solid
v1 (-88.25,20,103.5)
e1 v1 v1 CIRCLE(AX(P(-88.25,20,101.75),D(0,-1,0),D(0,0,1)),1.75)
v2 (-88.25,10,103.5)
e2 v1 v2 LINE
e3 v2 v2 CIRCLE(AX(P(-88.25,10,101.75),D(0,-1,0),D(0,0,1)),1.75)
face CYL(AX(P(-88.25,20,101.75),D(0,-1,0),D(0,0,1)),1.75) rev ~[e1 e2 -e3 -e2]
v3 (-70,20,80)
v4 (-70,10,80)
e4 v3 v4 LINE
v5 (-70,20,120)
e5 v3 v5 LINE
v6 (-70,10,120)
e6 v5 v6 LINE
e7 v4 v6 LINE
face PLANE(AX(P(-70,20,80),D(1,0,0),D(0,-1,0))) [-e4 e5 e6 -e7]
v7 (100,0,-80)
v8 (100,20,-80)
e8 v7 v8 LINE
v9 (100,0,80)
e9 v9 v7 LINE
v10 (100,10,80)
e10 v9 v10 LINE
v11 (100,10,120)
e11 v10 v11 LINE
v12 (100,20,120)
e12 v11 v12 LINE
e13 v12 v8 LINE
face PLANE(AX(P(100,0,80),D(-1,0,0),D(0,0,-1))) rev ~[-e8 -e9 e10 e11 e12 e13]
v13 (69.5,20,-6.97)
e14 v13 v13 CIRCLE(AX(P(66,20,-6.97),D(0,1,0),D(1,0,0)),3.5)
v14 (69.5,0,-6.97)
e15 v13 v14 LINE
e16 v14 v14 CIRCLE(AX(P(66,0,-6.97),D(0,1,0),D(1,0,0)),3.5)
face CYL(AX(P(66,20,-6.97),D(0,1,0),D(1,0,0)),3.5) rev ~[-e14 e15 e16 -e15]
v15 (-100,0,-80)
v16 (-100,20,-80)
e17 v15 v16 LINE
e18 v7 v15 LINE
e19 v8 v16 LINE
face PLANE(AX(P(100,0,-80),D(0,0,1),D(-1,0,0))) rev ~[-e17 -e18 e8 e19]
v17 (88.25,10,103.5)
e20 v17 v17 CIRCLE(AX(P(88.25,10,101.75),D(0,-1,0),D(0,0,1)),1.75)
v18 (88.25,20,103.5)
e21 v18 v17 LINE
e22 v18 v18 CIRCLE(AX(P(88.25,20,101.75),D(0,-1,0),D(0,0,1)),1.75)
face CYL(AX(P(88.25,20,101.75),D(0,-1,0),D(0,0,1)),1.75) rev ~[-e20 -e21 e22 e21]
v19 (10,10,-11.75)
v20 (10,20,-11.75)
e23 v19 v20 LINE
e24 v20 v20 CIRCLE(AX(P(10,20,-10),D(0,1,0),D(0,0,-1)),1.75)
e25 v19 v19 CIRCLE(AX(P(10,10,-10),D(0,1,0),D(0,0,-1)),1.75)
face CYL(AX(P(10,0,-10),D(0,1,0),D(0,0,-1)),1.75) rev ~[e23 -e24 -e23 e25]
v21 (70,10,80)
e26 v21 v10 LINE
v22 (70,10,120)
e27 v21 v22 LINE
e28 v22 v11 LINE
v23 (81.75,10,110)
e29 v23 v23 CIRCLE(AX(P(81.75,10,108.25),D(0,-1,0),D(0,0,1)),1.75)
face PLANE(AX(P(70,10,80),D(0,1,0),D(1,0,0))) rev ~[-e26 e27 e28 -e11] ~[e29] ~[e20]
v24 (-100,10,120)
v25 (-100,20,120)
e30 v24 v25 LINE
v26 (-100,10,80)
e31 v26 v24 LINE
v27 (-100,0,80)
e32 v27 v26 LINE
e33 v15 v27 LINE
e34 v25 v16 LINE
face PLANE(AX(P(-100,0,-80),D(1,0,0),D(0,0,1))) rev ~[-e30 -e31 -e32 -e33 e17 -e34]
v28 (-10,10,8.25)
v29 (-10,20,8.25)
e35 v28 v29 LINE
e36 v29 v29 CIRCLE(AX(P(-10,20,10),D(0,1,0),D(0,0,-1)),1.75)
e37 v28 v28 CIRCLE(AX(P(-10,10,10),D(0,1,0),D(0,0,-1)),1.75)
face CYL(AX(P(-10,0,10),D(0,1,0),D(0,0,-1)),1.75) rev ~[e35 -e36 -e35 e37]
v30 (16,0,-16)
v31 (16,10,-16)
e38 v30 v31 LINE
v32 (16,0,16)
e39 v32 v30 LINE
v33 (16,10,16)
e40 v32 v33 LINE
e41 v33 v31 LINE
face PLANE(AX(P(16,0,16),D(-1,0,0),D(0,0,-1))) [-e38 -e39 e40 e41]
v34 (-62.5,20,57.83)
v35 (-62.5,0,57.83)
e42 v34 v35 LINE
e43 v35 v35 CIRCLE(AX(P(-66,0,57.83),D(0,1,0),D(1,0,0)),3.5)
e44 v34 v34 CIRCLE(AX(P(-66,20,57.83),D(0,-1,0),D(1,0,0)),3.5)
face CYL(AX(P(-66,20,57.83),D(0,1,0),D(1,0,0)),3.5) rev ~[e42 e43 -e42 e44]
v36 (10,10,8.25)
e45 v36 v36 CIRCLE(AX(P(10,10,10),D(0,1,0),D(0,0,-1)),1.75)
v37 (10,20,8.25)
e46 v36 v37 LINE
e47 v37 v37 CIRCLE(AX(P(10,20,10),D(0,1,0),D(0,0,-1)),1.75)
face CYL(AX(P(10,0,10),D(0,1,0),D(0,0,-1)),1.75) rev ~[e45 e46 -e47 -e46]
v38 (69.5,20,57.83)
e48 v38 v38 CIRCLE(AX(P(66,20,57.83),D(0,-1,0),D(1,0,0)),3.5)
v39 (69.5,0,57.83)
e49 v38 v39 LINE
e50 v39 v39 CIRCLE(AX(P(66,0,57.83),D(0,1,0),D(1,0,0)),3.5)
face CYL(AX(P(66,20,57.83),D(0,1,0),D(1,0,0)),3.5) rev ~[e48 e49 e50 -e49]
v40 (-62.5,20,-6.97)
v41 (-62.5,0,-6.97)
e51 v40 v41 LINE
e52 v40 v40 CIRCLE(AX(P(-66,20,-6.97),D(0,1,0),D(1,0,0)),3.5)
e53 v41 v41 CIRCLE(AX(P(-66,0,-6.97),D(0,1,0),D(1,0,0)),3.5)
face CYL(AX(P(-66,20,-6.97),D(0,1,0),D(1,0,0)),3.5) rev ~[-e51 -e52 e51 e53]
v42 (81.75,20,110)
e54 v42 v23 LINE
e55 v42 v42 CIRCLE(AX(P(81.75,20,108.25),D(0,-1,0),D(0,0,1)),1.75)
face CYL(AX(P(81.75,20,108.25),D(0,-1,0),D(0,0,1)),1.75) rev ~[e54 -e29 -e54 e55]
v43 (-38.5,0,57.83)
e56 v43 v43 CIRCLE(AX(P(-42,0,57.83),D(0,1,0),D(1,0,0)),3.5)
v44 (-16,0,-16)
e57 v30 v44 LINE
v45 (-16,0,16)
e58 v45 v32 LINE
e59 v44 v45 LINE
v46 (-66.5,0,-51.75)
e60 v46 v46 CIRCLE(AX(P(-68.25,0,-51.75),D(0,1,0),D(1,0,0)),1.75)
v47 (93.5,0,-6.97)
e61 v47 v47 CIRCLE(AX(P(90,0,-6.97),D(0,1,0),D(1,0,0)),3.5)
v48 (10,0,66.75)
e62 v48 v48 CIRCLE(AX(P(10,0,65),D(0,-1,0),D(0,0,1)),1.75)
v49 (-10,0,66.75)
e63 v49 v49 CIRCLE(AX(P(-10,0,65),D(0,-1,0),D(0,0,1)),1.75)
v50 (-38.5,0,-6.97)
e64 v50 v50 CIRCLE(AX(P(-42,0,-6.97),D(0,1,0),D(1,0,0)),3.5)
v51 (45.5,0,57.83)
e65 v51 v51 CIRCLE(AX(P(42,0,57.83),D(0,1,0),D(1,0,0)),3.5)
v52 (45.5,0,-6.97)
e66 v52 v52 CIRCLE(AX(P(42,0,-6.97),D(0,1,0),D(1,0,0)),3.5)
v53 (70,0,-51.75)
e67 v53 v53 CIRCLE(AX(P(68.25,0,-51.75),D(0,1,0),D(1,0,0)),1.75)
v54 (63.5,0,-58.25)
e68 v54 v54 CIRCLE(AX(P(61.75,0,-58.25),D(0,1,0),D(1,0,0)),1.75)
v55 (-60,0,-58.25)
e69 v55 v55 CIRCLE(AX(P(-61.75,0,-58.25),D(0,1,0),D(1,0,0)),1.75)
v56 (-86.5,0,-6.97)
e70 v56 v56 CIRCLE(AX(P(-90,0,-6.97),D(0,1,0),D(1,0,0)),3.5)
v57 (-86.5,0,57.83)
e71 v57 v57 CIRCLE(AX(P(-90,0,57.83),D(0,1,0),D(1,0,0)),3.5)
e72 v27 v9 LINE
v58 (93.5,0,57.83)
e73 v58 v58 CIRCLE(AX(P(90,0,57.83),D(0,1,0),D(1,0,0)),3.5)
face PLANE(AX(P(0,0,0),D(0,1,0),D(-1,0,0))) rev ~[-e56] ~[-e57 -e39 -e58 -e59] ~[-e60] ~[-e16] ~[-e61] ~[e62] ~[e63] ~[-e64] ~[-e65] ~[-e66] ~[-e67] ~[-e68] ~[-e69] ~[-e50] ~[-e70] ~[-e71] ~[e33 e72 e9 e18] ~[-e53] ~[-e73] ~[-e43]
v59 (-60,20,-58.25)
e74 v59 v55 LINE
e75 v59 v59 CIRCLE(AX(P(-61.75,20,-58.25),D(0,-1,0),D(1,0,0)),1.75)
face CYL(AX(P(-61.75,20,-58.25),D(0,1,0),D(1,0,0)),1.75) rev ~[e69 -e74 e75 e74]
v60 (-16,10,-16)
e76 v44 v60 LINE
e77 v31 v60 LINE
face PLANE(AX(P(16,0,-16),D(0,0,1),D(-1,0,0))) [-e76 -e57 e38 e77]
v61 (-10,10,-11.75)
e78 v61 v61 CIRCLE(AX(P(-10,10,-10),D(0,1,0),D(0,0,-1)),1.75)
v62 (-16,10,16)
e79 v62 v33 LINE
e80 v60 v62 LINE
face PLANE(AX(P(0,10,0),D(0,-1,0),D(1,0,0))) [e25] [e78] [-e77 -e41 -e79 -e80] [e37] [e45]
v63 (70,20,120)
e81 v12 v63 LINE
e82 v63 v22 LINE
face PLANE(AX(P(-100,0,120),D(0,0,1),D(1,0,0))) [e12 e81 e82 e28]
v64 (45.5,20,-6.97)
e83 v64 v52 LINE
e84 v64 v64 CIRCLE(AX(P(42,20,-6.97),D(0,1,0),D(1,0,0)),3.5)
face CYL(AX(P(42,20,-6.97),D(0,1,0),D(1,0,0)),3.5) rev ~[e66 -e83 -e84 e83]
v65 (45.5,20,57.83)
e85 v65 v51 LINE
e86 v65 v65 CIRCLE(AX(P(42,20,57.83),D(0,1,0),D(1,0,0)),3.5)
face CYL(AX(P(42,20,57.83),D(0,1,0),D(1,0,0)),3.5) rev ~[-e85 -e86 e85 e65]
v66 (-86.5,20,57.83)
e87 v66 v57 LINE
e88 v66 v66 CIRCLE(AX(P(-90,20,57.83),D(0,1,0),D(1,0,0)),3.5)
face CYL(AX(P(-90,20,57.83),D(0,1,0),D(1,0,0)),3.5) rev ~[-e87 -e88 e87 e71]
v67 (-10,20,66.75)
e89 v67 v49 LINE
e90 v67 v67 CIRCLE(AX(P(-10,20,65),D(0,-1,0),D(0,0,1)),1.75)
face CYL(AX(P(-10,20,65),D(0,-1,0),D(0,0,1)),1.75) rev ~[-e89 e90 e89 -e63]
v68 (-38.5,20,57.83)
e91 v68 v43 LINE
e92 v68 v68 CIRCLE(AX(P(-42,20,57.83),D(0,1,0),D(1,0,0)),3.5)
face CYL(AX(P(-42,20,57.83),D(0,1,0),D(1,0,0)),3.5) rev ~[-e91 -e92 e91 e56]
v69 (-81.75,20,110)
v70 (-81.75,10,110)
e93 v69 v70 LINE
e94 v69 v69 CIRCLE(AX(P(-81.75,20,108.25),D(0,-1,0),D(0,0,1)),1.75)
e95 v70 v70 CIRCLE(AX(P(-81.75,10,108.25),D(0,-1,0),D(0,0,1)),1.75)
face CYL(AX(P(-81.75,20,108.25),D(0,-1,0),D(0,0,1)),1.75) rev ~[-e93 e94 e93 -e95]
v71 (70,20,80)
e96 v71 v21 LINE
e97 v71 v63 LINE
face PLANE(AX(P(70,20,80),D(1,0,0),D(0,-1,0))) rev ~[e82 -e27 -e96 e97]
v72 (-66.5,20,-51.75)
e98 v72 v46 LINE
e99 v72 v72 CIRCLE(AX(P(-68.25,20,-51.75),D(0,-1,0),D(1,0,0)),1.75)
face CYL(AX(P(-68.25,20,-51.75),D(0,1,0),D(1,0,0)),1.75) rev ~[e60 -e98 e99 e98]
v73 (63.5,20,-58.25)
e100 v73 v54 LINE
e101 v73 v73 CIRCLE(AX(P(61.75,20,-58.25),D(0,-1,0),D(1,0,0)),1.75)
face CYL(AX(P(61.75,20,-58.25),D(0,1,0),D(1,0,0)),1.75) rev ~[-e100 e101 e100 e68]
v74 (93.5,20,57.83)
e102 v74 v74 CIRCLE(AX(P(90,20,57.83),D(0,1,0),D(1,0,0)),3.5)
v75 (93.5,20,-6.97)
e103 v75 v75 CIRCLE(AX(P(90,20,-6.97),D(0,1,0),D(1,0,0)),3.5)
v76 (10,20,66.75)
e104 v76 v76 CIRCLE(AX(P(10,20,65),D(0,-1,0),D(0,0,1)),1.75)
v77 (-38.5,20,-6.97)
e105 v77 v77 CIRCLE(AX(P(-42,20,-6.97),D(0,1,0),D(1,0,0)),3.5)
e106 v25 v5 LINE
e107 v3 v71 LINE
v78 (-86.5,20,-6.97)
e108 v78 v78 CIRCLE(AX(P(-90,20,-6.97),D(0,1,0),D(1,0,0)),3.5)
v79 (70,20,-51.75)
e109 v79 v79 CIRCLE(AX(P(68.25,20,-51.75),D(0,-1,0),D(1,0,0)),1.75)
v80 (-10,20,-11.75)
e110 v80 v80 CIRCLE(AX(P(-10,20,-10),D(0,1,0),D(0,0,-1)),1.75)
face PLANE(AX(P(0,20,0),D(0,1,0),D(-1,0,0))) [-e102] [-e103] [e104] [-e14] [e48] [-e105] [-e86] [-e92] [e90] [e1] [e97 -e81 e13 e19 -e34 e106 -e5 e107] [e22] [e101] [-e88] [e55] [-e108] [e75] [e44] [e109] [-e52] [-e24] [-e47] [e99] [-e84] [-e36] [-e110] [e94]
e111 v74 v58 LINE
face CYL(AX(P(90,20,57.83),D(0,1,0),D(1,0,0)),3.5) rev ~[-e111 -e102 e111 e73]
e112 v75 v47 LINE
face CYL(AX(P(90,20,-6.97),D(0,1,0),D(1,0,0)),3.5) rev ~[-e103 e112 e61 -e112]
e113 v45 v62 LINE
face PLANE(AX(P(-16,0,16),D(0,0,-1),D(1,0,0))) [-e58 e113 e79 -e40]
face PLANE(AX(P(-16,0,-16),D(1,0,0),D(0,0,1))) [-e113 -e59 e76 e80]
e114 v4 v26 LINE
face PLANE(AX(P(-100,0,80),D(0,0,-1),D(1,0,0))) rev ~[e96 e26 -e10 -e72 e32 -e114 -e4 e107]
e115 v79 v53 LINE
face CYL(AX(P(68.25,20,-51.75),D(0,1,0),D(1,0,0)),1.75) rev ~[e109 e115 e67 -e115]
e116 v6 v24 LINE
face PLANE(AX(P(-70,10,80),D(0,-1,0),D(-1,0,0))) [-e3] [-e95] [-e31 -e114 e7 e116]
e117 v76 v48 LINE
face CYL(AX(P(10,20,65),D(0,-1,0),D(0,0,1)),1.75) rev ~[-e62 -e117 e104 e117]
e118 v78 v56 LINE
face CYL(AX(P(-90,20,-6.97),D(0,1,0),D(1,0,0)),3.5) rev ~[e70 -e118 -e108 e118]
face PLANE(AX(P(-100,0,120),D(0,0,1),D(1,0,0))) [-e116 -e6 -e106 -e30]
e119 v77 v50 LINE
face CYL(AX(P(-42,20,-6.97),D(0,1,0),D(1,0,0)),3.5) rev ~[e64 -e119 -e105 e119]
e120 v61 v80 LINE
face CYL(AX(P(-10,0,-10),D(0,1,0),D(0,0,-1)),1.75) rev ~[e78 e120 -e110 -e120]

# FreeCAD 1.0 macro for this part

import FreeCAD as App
import Part
import Sketcher
Q = App.Units.Quantity

doc = App.newDocument("Part")
body = doc.addObject("PartDesign::Body", "Body")

sketch1 = body.newObject("Sketcher::SketchObject", "Sketch")
sketch1.AttachmentSupport = (doc.getObject("XZ_Plane"), [""])
sketch1.MapMode = "FlatFace"
sketch1.addGeometry([
    Part.LineSegment(App.Vector(-100, -80, 0), App.Vector(-100, 80, 0)),
    Part.LineSegment(App.Vector(-100, 80, 0), App.Vector(100, 80, 0)),
    Part.LineSegment(App.Vector(100, 80, 0), App.Vector(100, -80, 0)),
    Part.LineSegment(App.Vector(100, -80, 0), App.Vector(-100, -80, 0)),
], False)
sketch1.addConstraint([
    Sketcher.Constraint("Coincident", 0, 2, 1, 1),
    Sketcher.Constraint("Coincident", 1, 2, 2, 1),
    Sketcher.Constraint("Coincident", 2, 2, 3, 1),
    Sketcher.Constraint("Coincident", 3, 2, 0, 1),
    Sketcher.Constraint("Vertical", 0),
    Sketcher.Constraint("Horizontal", 1),
    Sketcher.Constraint("Vertical", 2),
    Sketcher.Constraint("Horizontal", 3),
    Sketcher.Constraint("Symmetric", 0, 2, 2, 2, -1, 1),
    Sketcher.Constraint("DistanceX", 1, 1, 1, 2, Q("200 mm")),
    Sketcher.Constraint("DistanceY", 0, 1, 0, 2, Q("160 mm")),
])
pad1 = body.newObject("PartDesign::Pad", "Pad")
pad1.Profile = sketch1
pad1.Length = 20
pad1.Reversed = True

sketch2 = body.newObject("Sketcher::SketchObject", "Sketch001")
sketch2.AttachmentSupport = (doc.getObject("XZ_Plane"), [""])
sketch2.MapMode = "FlatFace"
sketch2.AttachmentOffset = App.Placement(App.Vector(0, 0, -20), App.Rotation())
sketch2.addGeometry([
    Part.Circle(App.Vector(-90, 57.8, 0), App.Vector(0, 0, 1), 3.5),
    Part.Circle(App.Vector(-66, 57.8, 0), App.Vector(0, 0, 1), 3.5),
    Part.Circle(App.Vector(-42, 57.8, 0), App.Vector(0, 0, 1), 3.5),
    Part.Circle(App.Vector(-42, -7, 0), App.Vector(0, 0, 1), 3.5),
    Part.Circle(App.Vector(-66, -7, 0), App.Vector(0, 0, 1), 3.5),
    Part.Circle(App.Vector(-90, -7, 0), App.Vector(0, 0, 1), 3.5),
    Part.Circle(App.Vector(90, 57.8, 0), App.Vector(0, 0, 1), 3.5),
    Part.Circle(App.Vector(66, 57.8, 0), App.Vector(0, 0, 1), 3.5),
    Part.Circle(App.Vector(42, 57.8, 0), App.Vector(0, 0, 1), 3.5),
    Part.Circle(App.Vector(90, -7, 0), App.Vector(0, 0, 1), 3.5),
    Part.Circle(App.Vector(66, -7, 0), App.Vector(0, 0, 1), 3.5),
    Part.Circle(App.Vector(42, -7, 0), App.Vector(0, 0, 1), 3.5),
], False)
sketch2.addConstraint([
    Sketcher.Constraint("Equal", 0, 1),
    Sketcher.Constraint("Equal", 1, 2),
    Sketcher.Constraint("Equal", 2, 3),
    Sketcher.Constraint("Equal", 3, 4),
    Sketcher.Constraint("Equal", 4, 5),
    Sketcher.Constraint("Equal", 5, 6),
    Sketcher.Constraint("Equal", 6, 7),
    Sketcher.Constraint("Equal", 7, 8),
    Sketcher.Constraint("Equal", 8, 9),
    Sketcher.Constraint("Equal", 9, 10),
    Sketcher.Constraint("Equal", 10, 11),
    Sketcher.Constraint("Symmetric", 0, 3, 6, 3, -2),
    Sketcher.Constraint("Symmetric", 1, 3, 7, 3, -2),
    Sketcher.Constraint("Symmetric", 2, 3, 8, 3, -2),
    Sketcher.Constraint("Symmetric", 5, 3, 9, 3, -2),
    Sketcher.Constraint("Symmetric", 4, 3, 10, 3, -2),
    Sketcher.Constraint("Symmetric", 3, 3, 11, 3, -2),
    Sketcher.Constraint("Horizontal", 0, 3, 1, 3),
    Sketcher.Constraint("Horizontal", 1, 3, 2, 3),
    Sketcher.Constraint("Horizontal", 3, 3, 4, 3),
    Sketcher.Constraint("Horizontal", 4, 3, 5, 3),
    Sketcher.Constraint("Vertical", 2, 3, 3, 3),
    Sketcher.Constraint("Vertical", 1, 3, 4, 3),
    Sketcher.Constraint("Vertical", 0, 3, 5, 3),
    Sketcher.Constraint("Diameter", 0, Q("7 mm")),
    Sketcher.Constraint("DistanceX", 0, 3, 1, 3, Q("24 mm")),
    Sketcher.Constraint("DistanceX", 1, 3, 2, 3, Q("24 mm")),
    Sketcher.Constraint("DistanceX", 0, 3, -1, 1, Q("90 mm")),
    Sketcher.Constraint("DistanceY", 3, 3, 2, 3, Q("64.8 mm")),
    Sketcher.Constraint("DistanceY", -1, 1, 0, 3, Q("57.83 mm")),
])
pocket1 = body.newObject("PartDesign::Pocket", "Pocket")
pocket1.Profile = sketch2
pocket1.Length = 20
pocket1.Reversed = True

sketch3 = body.newObject("Sketcher::SketchObject", "Sketch002")
sketch3.AttachmentSupport = (doc.getObject("XY_Plane"), [""])
sketch3.MapMode = "FlatFace"
sketch3.AttachmentOffset = App.Placement(App.Vector(0, 0, 80), App.Rotation())
sketch3.addGeometry([
    Part.LineSegment(App.Vector(-70, 20, 0), App.Vector(-100, 20, 0)),
    Part.LineSegment(App.Vector(-100, 20, 0), App.Vector(-100, 10, 0)),
    Part.LineSegment(App.Vector(-100, 10, 0), App.Vector(-70, 10, 0)),
    Part.LineSegment(App.Vector(-70, 10, 0), App.Vector(-70, 20, 0)),
    Part.LineSegment(App.Vector(100, 10, 0), App.Vector(100, 20, 0)),
    Part.LineSegment(App.Vector(100, 20, 0), App.Vector(70, 20, 0)),
    Part.LineSegment(App.Vector(70, 20, 0), App.Vector(70, 10, 0)),
    Part.LineSegment(App.Vector(70, 10, 0), App.Vector(100, 10, 0)),
], False)
sketch3.addConstraint([
    Sketcher.Constraint("Coincident", 0, 2, 1, 1),
    Sketcher.Constraint("Coincident", 1, 2, 2, 1),
    Sketcher.Constraint("Coincident", 2, 2, 3, 1),
    Sketcher.Constraint("Coincident", 3, 2, 0, 1),
    Sketcher.Constraint("Coincident", 4, 2, 5, 1),
    Sketcher.Constraint("Coincident", 5, 2, 6, 1),
    Sketcher.Constraint("Coincident", 6, 2, 7, 1),
    Sketcher.Constraint("Coincident", 7, 2, 4, 1),
    Sketcher.Constraint("Horizontal", 0),
    Sketcher.Constraint("Vertical", 1),
    Sketcher.Constraint("Horizontal", 2),
    Sketcher.Constraint("Vertical", 3),
    Sketcher.Constraint("Vertical", 4),
    Sketcher.Constraint("Horizontal", 5),
    Sketcher.Constraint("Vertical", 6),
    Sketcher.Constraint("Horizontal", 7),
    Sketcher.Constraint("Symmetric", 0, 2, 4, 2, -2),
    Sketcher.Constraint("Symmetric", 2, 2, 6, 2, -2),
    Sketcher.Constraint("DistanceX", 0, 2, 0, 1, Q("30 mm")),
    Sketcher.Constraint("DistanceY", 1, 2, 1, 1, Q("10 mm")),
    Sketcher.Constraint("DistanceY", -1, 1, 1, 2, Q("10 mm")),
    Sketcher.Constraint("DistanceX", 0, 2, -1, 1, Q("100 mm")),
])
pad2 = body.newObject("PartDesign::Pad", "Pad001")
pad2.Profile = sketch3
pad2.Length = 40

sketch4 = body.newObject("Sketcher::SketchObject", "Sketch003")
sketch4.AttachmentSupport = (doc.getObject("XZ_Plane"), [""])
sketch4.MapMode = "FlatFace"
sketch4.AttachmentOffset = App.Placement(App.Vector(0, 0, -20), App.Rotation())
sketch4.addGeometry([
    Part.Circle(App.Vector(-61.8, -58.2, 0), App.Vector(0, 0, 1), 1.8),
    Part.Circle(App.Vector(-68.2, -51.8, 0), App.Vector(0, 0, 1), 1.8),
    Part.Circle(App.Vector(61.8, -58.2, 0), App.Vector(0, 0, 1), 1.8),
    Part.Circle(App.Vector(68.2, -51.8, 0), App.Vector(0, 0, 1), 1.8),
], False)
sketch4.addConstraint([
    Sketcher.Constraint("Equal", 0, 1),
    Sketcher.Constraint("Equal", 1, 2),
    Sketcher.Constraint("Equal", 2, 3),
    Sketcher.Constraint("Symmetric", 0, 3, 2, 3, -2),
    Sketcher.Constraint("Symmetric", 1, 3, 3, 3, -2),
    Sketcher.Constraint("Diameter", 0, Q("3.5 mm")),
    Sketcher.Constraint("DistanceX", 1, 3, 2, 3, Q("130 mm")),
    Sketcher.Constraint("DistanceX", 1, 3, 0, 3, Q("6.5 mm")),
    Sketcher.Constraint("DistanceY", 0, 3, 1, 3, Q("6.5 mm")),
    Sketcher.Constraint("DistanceY", 0, 3, -1, 1, Q("58.25 mm")),
])
pocket2 = body.newObject("PartDesign::Pocket", "Pocket001")
pocket2.Profile = sketch4
pocket2.Length = 40
pocket2.Reversed = True

sketch5 = body.newObject("Sketcher::SketchObject", "Sketch004")
sketch5.AttachmentSupport = (doc.getObject("XZ_Plane"), [""])
sketch5.MapMode = "FlatFace"
sketch5.AttachmentOffset = App.Placement(App.Vector(0, 0, -20), App.Rotation())
sketch5.addGeometry([
    Part.Circle(App.Vector(-88.2, 101.8, 0), App.Vector(0, 0, 1), 1.8),
    Part.Circle(App.Vector(-81.8, 108.2, 0), App.Vector(0, 0, 1), 1.8),
    Part.Circle(App.Vector(81.8, 108.2, 0), App.Vector(0, 0, 1), 1.8),
    Part.Circle(App.Vector(88.2, 101.8, 0), App.Vector(0, 0, 1), 1.8),
], False)
sketch5.addConstraint([
    Sketcher.Constraint("Equal", 0, 1),
    Sketcher.Constraint("Equal", 1, 2),
    Sketcher.Constraint("Equal", 2, 3),
    Sketcher.Constraint("Symmetric", 1, 3, 2, 3, -2),
    Sketcher.Constraint("Symmetric", 0, 3, 3, 3, -2),
    Sketcher.Constraint("Diameter", 0, Q("3.5 mm")),
    Sketcher.Constraint("DistanceX", 0, 3, 2, 3, Q("170 mm")),
    Sketcher.Constraint("DistanceX", 0, 3, 1, 3, Q("6.5 mm")),
    Sketcher.Constraint("DistanceY", 0, 3, 1, 3, Q("6.5 mm")),
    Sketcher.Constraint("DistanceY", -1, 1, 0, 3, Q("101.75 mm")),
])
doc.recompute()
hole = body.newObject("PartDesign::Hole", "Hole")
hole.Profile = sketch5
hole.ThreadType = "None"
hole.Diameter = 3.5
hole.DepthType = "ThroughAll"
hole.Reversed = True

sketch6 = body.newObject("Sketcher::SketchObject", "Sketch005")
sketch6.AttachmentSupport = (doc.getObject("XZ_Plane"), [""])
sketch6.MapMode = "FlatFace"
sketch6.addGeometry([
    Part.Circle(App.Vector(10, 10, 0), App.Vector(0, 0, 1), 1.8),
    Part.Circle(App.Vector(-10, 10, 0), App.Vector(0, 0, 1), 1.8),
    Part.Circle(App.Vector(-10, -10, 0), App.Vector(0, 0, 1), 1.8),
    Part.Circle(App.Vector(10, -10, 0), App.Vector(0, 0, 1), 1.8),
], False)
sketch6.addConstraint([
    Sketcher.Constraint("Equal", 0, 1),
    Sketcher.Constraint("Equal", 1, 2),
    Sketcher.Constraint("Equal", 2, 3),
    Sketcher.Constraint("Symmetric", 0, 3, 2, 3, -1, 1),
    Sketcher.Constraint("Symmetric", 1, 3, 3, 3, -1, 1),
    Sketcher.Constraint("Symmetric", 0, 3, 1, 3, -2),
    Sketcher.Constraint("Diameter", 0, Q("3.5 mm")),
    Sketcher.Constraint("DistanceX", -1, 1, 0, 3, Q("10 mm")),
    Sketcher.Constraint("DistanceY", -1, 1, 0, 3, Q("10 mm")),
])
doc.recompute()
hole2 = body.newObject("PartDesign::Hole", "Hole001")
hole2.Profile = sketch6
hole2.ThreadType = "None"
hole2.Diameter = 3.5
hole2.DepthType = "ThroughAll"

sketch7 = body.newObject("Sketcher::SketchObject", "Sketch006")
sketch7.AttachmentSupport = (doc.getObject("XZ_Plane"), [""])
sketch7.MapMode = "FlatFace"
sketch7.addGeometry([
    Part.LineSegment(App.Vector(16, 16, 0), App.Vector(-16, 16, 0)),
    Part.LineSegment(App.Vector(-16, 16, 0), App.Vector(-16, -16, 0)),
    Part.LineSegment(App.Vector(-16, -16, 0), App.Vector(16, -16, 0)),
    Part.LineSegment(App.Vector(16, -16, 0), App.Vector(16, 16, 0)),
], False)
sketch7.addConstraint([
    Sketcher.Constraint("Coincident", 0, 2, 1, 1),
    Sketcher.Constraint("Coincident", 1, 2, 2, 1),
    Sketcher.Constraint("Coincident", 2, 2, 3, 1),
    Sketcher.Constraint("Coincident", 3, 2, 0, 1),
    Sketcher.Constraint("Horizontal", 0),
    Sketcher.Constraint("Vertical", 1),
    Sketcher.Constraint("Horizontal", 2),
    Sketcher.Constraint("Vertical", 3),
    Sketcher.Constraint("Symmetric", 0, 2, 2, 2, -1, 1),
    Sketcher.Constraint("Equal", 2, 1),
    Sketcher.Constraint("DistanceX", 0, 2, 0, 1, Q("32 mm")),
])
pocket3 = body.newObject("PartDesign::Pocket", "Pocket002")
pocket3.Profile = sketch7
pocket3.Length = 10

sketch8 = body.newObject("Sketcher::SketchObject", "Sketch007")
sketch8.AttachmentSupport = (doc.getObject("XZ_Plane"), [""])
sketch8.MapMode = "FlatFace"
sketch8.AttachmentOffset = App.Placement(App.Vector(0, 0, -20), App.Rotation())
sketch8.addGeometry([
    Part.Circle(App.Vector(-10, 65, 0), App.Vector(0, 0, 1), 1.8),
    Part.Circle(App.Vector(10, 65, 0), App.Vector(0, 0, 1), 1.8),
], False)
sketch8.addConstraint([
    Sketcher.Constraint("Equal", 0, 1),
    Sketcher.Constraint("Symmetric", 0, 3, 1, 3, -2),
    Sketcher.Constraint("Diameter", 0, Q("3.5 mm")),
    Sketcher.Constraint("DistanceX", 0, 3, -1, 1, Q("10 mm")),
    Sketcher.Constraint("DistanceY", -1, 1, 0, 3, Q("65 mm")),
])
doc.recompute()
hole3 = body.newObject("PartDesign::Hole", "Hole002")
hole3.Profile = sketch8
hole3.ThreadType = "None"
hole3.Diameter = 3.5
hole3.DepthType = "ThroughAll"
hole3.Reversed = True

doc.recompute()
